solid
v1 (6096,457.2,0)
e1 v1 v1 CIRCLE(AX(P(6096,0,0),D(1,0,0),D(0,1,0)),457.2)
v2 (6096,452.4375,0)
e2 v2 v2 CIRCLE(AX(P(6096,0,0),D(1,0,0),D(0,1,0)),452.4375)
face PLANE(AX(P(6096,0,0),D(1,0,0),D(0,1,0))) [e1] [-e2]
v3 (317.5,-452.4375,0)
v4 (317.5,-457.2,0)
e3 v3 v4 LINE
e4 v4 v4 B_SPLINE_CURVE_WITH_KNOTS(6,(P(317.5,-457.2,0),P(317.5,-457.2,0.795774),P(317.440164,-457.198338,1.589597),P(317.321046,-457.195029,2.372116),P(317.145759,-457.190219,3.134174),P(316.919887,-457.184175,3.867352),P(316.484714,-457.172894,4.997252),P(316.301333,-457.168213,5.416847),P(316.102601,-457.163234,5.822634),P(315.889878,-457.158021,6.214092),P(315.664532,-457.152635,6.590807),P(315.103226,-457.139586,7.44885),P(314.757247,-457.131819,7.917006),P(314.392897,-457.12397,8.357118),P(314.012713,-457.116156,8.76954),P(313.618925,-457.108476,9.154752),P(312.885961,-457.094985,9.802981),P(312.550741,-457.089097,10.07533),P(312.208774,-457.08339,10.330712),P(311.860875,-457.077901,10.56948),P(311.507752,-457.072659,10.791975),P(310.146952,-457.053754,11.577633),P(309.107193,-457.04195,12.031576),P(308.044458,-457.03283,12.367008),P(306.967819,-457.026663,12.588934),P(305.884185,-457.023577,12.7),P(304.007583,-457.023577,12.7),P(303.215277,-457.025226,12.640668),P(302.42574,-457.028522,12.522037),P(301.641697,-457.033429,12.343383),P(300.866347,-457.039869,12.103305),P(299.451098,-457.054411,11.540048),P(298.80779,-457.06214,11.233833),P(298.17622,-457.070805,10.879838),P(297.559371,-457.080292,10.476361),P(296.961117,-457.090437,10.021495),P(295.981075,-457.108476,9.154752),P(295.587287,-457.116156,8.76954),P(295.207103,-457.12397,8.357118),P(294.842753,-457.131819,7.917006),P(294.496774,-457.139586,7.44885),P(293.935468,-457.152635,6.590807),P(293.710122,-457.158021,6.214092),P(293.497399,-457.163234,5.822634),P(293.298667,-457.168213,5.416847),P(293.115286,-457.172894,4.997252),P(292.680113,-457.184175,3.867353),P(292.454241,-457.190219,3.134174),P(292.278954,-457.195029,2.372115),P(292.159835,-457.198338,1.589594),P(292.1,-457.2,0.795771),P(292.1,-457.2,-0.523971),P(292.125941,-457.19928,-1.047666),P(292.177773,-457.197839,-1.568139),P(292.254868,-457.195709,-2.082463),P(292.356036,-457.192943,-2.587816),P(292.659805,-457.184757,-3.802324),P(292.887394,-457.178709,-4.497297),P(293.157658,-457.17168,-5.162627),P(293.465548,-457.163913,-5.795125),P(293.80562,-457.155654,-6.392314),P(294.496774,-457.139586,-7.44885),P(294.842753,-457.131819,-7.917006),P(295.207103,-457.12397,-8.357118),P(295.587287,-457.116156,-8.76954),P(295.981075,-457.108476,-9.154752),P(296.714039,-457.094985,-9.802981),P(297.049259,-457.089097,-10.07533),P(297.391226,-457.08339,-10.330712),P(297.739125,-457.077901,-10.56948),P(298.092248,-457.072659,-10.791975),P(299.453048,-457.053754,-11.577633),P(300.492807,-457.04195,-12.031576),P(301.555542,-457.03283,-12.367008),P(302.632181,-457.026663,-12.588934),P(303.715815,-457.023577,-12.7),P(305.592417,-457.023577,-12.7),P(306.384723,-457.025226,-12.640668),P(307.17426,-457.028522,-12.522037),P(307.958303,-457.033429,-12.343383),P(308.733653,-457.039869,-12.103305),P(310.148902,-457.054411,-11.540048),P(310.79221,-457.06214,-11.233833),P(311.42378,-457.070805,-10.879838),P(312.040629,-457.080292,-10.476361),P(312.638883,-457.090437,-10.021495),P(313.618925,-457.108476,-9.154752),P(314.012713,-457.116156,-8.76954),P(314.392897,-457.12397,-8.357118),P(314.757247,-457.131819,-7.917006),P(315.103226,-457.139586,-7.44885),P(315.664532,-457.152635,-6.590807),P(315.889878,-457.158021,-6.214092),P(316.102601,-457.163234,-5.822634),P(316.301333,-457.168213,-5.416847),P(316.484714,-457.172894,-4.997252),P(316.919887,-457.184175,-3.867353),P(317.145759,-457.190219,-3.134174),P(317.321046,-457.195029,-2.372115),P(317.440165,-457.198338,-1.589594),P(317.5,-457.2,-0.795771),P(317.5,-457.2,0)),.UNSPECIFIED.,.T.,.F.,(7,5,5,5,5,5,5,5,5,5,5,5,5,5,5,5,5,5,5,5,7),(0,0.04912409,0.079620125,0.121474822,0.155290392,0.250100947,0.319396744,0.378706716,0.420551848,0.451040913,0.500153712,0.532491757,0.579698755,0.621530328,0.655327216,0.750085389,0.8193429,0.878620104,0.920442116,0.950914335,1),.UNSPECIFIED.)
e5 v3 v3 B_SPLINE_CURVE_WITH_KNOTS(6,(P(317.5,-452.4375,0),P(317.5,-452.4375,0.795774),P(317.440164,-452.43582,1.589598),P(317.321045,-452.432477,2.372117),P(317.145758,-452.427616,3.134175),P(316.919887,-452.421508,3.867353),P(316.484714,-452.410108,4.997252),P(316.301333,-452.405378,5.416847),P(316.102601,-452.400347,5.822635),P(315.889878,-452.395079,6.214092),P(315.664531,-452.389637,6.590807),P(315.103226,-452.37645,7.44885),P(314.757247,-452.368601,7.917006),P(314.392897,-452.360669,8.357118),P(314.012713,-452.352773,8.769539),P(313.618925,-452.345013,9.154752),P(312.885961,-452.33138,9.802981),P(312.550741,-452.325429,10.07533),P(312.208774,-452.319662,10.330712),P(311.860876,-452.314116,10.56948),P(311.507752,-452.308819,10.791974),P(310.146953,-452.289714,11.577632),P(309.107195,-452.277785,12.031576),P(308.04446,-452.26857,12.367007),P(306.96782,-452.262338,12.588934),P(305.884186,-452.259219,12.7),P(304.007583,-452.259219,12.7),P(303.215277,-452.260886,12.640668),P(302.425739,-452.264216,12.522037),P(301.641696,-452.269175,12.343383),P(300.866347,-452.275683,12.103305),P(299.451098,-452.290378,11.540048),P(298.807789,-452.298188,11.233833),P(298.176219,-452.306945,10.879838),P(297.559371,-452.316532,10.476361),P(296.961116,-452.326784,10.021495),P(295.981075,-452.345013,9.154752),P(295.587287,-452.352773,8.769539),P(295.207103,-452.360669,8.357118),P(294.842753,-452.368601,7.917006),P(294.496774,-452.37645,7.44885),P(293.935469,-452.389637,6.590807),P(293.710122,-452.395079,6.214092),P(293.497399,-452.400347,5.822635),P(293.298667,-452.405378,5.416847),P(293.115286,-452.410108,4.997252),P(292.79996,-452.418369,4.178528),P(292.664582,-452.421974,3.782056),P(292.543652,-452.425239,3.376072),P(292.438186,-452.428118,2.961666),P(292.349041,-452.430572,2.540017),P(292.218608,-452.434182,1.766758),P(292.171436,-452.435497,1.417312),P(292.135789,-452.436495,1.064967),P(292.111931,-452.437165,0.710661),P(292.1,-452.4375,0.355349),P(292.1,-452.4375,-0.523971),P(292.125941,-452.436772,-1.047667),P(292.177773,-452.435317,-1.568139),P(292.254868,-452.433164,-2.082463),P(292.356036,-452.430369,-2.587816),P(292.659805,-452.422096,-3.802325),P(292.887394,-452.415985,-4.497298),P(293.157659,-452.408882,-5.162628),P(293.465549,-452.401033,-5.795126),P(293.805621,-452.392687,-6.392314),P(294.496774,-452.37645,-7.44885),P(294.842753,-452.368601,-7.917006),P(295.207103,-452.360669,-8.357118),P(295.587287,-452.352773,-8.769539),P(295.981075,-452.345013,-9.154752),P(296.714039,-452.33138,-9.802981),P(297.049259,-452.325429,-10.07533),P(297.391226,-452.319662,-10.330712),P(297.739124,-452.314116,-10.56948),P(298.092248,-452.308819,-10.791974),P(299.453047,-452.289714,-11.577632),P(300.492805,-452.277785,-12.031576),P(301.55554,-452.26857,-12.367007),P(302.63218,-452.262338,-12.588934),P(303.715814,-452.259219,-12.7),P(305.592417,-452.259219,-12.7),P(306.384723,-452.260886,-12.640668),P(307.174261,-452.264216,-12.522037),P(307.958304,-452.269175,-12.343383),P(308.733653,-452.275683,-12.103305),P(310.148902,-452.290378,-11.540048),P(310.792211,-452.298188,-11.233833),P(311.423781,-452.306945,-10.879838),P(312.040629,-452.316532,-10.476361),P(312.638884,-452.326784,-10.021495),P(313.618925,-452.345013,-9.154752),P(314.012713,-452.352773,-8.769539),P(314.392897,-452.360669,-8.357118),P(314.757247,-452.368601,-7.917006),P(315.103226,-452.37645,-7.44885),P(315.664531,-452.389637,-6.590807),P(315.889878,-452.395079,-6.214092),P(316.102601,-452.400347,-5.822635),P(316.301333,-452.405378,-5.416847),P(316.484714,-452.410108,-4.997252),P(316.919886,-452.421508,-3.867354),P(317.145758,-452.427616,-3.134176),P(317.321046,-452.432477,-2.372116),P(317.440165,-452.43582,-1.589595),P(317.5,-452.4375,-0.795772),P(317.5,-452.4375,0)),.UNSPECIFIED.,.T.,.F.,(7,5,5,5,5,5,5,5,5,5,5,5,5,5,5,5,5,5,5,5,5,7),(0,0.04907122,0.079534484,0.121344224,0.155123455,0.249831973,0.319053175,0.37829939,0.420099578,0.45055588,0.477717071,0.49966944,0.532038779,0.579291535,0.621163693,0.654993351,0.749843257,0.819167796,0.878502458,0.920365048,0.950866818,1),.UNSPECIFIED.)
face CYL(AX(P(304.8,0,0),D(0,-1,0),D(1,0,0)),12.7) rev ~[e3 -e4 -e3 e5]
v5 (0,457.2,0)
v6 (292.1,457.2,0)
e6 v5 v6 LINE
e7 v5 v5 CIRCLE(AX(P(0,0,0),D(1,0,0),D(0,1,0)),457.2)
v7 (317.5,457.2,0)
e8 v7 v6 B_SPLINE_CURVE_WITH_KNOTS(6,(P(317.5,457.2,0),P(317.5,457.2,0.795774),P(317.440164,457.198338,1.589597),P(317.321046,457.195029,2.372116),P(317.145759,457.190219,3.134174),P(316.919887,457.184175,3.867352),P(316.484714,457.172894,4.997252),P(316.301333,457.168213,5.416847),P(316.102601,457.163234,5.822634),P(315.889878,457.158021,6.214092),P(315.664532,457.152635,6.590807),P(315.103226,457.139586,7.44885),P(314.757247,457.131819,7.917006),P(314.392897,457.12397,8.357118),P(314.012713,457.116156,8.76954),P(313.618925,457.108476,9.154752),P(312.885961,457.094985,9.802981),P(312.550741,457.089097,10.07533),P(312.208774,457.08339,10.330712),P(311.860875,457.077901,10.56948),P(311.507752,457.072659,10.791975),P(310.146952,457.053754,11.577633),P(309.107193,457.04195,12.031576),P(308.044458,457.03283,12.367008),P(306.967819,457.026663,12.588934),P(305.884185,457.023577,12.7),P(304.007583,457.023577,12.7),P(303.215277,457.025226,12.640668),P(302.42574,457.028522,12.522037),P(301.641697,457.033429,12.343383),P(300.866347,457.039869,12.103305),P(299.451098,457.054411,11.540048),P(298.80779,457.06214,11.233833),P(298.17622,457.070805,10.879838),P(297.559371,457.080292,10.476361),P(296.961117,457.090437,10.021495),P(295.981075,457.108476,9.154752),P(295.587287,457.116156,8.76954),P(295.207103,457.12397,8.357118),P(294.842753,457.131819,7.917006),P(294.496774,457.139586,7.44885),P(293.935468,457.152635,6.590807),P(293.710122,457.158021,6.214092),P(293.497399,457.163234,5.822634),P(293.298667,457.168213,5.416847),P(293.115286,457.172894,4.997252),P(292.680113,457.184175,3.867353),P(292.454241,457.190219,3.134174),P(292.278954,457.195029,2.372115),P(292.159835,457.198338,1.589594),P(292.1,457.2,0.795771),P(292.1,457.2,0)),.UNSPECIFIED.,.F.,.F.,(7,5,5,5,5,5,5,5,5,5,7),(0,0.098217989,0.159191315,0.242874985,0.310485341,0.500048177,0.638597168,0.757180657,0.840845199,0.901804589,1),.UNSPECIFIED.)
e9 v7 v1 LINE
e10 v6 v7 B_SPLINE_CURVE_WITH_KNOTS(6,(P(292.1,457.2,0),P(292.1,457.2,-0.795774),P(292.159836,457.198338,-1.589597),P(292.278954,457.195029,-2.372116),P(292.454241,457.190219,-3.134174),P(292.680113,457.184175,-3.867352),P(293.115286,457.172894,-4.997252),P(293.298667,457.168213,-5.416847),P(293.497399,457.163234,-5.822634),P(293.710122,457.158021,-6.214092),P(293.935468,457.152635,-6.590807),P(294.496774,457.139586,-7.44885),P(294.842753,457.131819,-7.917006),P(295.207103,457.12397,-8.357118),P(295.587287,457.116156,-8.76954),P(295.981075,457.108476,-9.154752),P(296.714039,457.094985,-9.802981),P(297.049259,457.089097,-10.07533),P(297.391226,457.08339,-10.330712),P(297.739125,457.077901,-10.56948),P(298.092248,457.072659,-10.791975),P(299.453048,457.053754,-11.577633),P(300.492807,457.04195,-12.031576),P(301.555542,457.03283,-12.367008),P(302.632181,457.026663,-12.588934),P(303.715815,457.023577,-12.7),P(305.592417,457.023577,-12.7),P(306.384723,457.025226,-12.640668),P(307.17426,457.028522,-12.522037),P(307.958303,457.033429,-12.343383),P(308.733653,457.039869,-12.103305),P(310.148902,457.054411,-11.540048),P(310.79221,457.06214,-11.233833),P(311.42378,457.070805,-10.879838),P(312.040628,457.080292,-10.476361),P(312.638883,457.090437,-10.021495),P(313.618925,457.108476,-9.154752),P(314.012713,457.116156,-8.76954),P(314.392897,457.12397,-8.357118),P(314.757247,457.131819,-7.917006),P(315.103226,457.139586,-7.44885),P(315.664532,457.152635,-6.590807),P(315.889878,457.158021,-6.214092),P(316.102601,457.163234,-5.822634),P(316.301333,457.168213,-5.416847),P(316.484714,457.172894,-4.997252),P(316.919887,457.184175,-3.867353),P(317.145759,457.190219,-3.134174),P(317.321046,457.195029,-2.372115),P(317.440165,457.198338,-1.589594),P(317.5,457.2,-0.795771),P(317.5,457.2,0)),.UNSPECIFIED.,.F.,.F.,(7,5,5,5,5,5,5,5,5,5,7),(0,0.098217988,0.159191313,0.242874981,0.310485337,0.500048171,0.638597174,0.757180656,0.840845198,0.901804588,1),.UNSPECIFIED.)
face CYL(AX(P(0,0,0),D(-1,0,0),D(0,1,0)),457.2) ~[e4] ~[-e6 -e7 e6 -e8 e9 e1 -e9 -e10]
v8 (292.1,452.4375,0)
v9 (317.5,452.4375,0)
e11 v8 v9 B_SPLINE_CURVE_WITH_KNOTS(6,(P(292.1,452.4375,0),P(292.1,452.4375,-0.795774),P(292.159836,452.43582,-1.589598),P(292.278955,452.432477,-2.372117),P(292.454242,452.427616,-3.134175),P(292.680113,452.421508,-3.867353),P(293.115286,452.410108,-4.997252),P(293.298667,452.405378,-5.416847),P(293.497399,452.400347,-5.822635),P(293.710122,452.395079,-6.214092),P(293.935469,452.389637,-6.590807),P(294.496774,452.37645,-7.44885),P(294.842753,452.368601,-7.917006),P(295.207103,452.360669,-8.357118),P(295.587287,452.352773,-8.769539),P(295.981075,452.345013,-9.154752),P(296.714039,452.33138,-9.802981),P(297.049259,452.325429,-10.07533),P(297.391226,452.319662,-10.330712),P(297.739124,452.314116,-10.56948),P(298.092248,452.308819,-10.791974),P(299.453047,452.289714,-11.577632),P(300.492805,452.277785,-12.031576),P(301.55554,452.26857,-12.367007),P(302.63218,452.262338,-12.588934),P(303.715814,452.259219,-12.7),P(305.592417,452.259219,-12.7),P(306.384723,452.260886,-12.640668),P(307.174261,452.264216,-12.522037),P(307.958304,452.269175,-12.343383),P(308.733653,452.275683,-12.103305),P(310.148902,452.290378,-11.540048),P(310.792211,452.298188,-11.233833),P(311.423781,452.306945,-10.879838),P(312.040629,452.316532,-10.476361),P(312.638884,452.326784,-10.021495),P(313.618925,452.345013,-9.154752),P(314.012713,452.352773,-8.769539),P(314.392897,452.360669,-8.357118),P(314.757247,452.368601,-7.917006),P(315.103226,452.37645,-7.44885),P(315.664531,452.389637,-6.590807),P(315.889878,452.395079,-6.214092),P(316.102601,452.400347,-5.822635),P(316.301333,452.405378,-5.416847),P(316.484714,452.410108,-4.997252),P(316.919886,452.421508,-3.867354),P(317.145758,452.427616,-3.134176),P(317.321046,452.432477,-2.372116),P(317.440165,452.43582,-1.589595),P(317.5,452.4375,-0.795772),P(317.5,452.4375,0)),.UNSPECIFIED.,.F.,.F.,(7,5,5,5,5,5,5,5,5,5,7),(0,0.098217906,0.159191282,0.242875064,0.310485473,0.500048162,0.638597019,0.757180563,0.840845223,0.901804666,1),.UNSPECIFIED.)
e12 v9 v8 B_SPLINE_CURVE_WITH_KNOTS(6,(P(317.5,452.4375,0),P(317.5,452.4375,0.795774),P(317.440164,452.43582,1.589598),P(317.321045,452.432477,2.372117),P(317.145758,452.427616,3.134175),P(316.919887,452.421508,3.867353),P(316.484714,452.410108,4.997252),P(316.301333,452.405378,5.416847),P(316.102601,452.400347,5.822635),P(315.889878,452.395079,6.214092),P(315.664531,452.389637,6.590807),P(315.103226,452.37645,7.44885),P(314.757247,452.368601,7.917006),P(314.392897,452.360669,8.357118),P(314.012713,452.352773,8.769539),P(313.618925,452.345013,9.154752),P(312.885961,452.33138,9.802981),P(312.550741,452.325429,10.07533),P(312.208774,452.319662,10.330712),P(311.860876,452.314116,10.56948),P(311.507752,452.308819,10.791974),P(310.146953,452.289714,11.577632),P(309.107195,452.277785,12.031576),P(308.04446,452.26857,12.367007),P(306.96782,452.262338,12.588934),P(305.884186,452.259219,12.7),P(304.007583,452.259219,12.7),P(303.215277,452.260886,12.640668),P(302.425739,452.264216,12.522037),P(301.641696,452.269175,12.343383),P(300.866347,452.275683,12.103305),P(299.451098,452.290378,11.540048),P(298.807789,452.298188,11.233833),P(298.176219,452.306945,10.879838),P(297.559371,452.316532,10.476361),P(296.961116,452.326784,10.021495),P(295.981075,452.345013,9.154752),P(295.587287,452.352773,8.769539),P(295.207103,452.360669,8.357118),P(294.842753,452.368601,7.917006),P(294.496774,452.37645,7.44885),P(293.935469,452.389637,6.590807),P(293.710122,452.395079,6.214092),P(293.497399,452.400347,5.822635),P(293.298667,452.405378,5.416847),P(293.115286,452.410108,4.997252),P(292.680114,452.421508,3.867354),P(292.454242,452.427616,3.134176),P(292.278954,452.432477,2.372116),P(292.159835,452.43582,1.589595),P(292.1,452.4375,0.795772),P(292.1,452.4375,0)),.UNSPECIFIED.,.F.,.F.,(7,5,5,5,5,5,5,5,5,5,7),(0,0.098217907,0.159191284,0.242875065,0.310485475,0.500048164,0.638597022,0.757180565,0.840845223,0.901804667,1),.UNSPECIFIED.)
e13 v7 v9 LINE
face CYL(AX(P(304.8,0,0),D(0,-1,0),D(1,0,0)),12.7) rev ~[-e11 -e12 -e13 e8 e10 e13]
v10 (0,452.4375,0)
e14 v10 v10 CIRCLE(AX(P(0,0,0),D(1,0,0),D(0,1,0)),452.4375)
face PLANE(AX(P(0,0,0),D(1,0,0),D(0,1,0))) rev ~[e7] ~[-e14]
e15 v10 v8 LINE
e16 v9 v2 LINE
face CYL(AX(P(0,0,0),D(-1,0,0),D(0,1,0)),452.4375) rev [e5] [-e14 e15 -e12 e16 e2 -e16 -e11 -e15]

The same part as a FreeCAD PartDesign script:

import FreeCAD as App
import Part
import Sketcher
from FreeCAD import Vector
Q = App.Units.Quantity

doc = App.newDocument("Part")
params = doc.addObject("Spreadsheet::Sheet", "Params")
for row, (alias, value) in enumerate([
    ("sketch1_diameter", "36 in"),
    ("sketch1_diameter2", "35.625 in"),
    ("pad1_length", "240 in"),
    ("sketch2_diameter", "1 in"),
    ("pocket1_length", "40 in"),
], start=1):
    params.set(f"A{row}", alias)
    params.set(f"B{row}", "=" + value)
    params.setAlias(f"B{row}", alias)

body = doc.addObject("PartDesign::Body", "Body")

sketch1 = body.newObject("Sketcher::SketchObject", "Sketch")
sketch1.AttachmentSupport = (doc.getObject("YZ_Plane"), [""])
sketch1.MapMode = "FlatFace"
sketch1.addGeometry(Part.Circle(Vector(0, 0, 0), Vector(0, 0, 1), 457.2), False)
sketch1.addGeometry(Part.Circle(Vector(0, 0, 0), Vector(0, 0, 1), 452.4375), False)
sketch1.addConstraint(Sketcher.Constraint("Coincident", 0, 3, -1, 1))
sketch1.addConstraint(Sketcher.Constraint("Coincident", 1, 3, -1, 1))
sketch1.addConstraint(Sketcher.Constraint("Diameter", 0, Q("36 in")))
sketch1.addConstraint(Sketcher.Constraint("Diameter", 1, Q("35.625 in")))
sketch1.setExpression("Constraints[2]", "Params.sketch1_diameter")
sketch1.setExpression("Constraints[3]", "Params.sketch1_diameter2")
pad1 = body.newObject("PartDesign::Pad", "Pad")
pad1.Profile = sketch1
pad1.setExpression("Length", "Params.pad1_length")

sketch2 = body.newObject("Sketcher::SketchObject", "Sketch001")
sketch2.AttachmentSupport = (doc.getObject("XZ_Plane"), [""])
sketch2.MapMode = "FlatFace"
sketch2.addGeometry(Part.Circle(Vector(304.8, 0, 0), Vector(0, 0, 1), 12.7), False)
sketch2.addConstraint(Sketcher.Constraint("PointOnObject", 0, 3, -1))
sketch2.addConstraint(Sketcher.Constraint("Diameter", 0, Q("1 in")))
sketch2.addConstraint(Sketcher.Constraint("DistanceX", -1, 1, 0, 3, Q("12 in")))
sketch2.setExpression("Constraints[1]", "Params.sketch2_diameter")
pocket1 = body.newObject("PartDesign::Pocket", "Pocket")
pocket1.Profile = sketch2
pocket1.setExpression("Length", "Params.pocket1_length")
pocket1.Midplane = True

doc.recompute()
